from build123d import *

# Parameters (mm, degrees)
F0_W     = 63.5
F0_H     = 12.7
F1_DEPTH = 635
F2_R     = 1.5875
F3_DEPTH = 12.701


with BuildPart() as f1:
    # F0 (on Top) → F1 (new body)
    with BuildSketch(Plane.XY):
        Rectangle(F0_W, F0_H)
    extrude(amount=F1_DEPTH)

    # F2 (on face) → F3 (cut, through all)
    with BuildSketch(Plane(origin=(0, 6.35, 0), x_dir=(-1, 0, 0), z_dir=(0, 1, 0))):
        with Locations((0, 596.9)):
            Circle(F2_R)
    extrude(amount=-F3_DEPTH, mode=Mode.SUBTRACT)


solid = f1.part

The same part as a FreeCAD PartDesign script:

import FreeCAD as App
import Part
import Sketcher

V = App.Vector
Q = App.Units.Quantity

doc = App.newDocument("Part")
params = doc.addObject("Spreadsheet::Sheet", "Params")
for row, (alias, value) in enumerate([
    ("sketch1_width", "2.5 in"),
    ("sketch1_height", "0.5 in"),
    ("pad1_length", "25 in"),
    ("sketch2_diameter", "0.125 in"),
], start=1):
    params.set(f"A{row}", alias)
    params.set(f"B{row}", "=" + value)
    params.setAlias(f"B{row}", alias)

body = doc.addObject("PartDesign::Body", "Body")

sketch1 = doc.addObject("Sketcher::SketchObject", "Sketch")
body.addObject(sketch1)
sketch1.AttachmentSupport = (doc.XY_Plane, [""])
sketch1.MapMode = "FlatFace"
sketch1.addGeometry(Part.LineSegment(V(-32, 6, 0), V(-32, -6, 0)), False)
sketch1.addGeometry(Part.LineSegment(V(-32, -6, 0), V(32, -6, 0)), False)
sketch1.addGeometry(Part.LineSegment(V(32, -6, 0), V(32, 6, 0)), False)
sketch1.addGeometry(Part.LineSegment(V(32, 6, 0), V(-32, 6, 0)), False)
sketch1.addConstraint(Sketcher.Constraint("Coincident", 0, 2, 1, 1))
sketch1.addConstraint(Sketcher.Constraint("Coincident", 1, 2, 2, 1))
sketch1.addConstraint(Sketcher.Constraint("Coincident", 2, 2, 3, 1))
sketch1.addConstraint(Sketcher.Constraint("Coincident", 3, 2, 0, 1))
sketch1.addConstraint(Sketcher.Constraint("Vertical", 0))
sketch1.addConstraint(Sketcher.Constraint("Horizontal", 1))
sketch1.addConstraint(Sketcher.Constraint("Vertical", 2))
sketch1.addConstraint(Sketcher.Constraint("Horizontal", 3))
sketch1.addConstraint(Sketcher.Constraint("Symmetric", 0, 2, 2, 2, -1, 1))
sketch1.addConstraint(Sketcher.Constraint("DistanceX", 1, 1, 1, 2, Q("2.5 in")))
sketch1.addConstraint(Sketcher.Constraint("DistanceY", 0, 2, 0, 1, Q("0.5 in")))
sketch1.setExpression("Constraints[9]", "Params.sketch1_width")
sketch1.setExpression("Constraints[10]", "Params.sketch1_height")
pad1 = doc.addObject("PartDesign::Pad", "Pad")
body.addObject(pad1)
pad1.Profile = sketch1
pad1.setExpression("Length", "Params.pad1_length")

sketch2 = doc.addObject("Sketcher::SketchObject", "Sketch001")
body.addObject(sketch2)
sketch2.AttachmentSupport = (doc.XZ_Plane, [""])
sketch2.MapMode = "FlatFace"
sketch2.AttachmentOffset = App.Placement(V(0, 0, -0.25 * 25.4), App.Rotation())
sketch2.addGeometry(Part.Circle(V(0, 596.9, 0), V(0, 0, 1), 1.6), False)
sketch2.addConstraint(Sketcher.Constraint("PointOnObject", 0, 3, -2))
sketch2.addConstraint(Sketcher.Constraint("Diameter", 0, Q("0.125 in")))
sketch2.addConstraint(Sketcher.Constraint("DistanceY", -1, 1, 0, 3, Q("23.5 in")))
sketch2.setExpression("Constraints[1]", "Params.sketch2_diameter")
pocket1 = doc.addObject("PartDesign::Pocket", "Pocket")
body.addObject(pocket1)
pocket1.Profile = sketch2
pocket1.Type = "ThroughAll"
pocket1.Reversed = True

doc.recompute()
